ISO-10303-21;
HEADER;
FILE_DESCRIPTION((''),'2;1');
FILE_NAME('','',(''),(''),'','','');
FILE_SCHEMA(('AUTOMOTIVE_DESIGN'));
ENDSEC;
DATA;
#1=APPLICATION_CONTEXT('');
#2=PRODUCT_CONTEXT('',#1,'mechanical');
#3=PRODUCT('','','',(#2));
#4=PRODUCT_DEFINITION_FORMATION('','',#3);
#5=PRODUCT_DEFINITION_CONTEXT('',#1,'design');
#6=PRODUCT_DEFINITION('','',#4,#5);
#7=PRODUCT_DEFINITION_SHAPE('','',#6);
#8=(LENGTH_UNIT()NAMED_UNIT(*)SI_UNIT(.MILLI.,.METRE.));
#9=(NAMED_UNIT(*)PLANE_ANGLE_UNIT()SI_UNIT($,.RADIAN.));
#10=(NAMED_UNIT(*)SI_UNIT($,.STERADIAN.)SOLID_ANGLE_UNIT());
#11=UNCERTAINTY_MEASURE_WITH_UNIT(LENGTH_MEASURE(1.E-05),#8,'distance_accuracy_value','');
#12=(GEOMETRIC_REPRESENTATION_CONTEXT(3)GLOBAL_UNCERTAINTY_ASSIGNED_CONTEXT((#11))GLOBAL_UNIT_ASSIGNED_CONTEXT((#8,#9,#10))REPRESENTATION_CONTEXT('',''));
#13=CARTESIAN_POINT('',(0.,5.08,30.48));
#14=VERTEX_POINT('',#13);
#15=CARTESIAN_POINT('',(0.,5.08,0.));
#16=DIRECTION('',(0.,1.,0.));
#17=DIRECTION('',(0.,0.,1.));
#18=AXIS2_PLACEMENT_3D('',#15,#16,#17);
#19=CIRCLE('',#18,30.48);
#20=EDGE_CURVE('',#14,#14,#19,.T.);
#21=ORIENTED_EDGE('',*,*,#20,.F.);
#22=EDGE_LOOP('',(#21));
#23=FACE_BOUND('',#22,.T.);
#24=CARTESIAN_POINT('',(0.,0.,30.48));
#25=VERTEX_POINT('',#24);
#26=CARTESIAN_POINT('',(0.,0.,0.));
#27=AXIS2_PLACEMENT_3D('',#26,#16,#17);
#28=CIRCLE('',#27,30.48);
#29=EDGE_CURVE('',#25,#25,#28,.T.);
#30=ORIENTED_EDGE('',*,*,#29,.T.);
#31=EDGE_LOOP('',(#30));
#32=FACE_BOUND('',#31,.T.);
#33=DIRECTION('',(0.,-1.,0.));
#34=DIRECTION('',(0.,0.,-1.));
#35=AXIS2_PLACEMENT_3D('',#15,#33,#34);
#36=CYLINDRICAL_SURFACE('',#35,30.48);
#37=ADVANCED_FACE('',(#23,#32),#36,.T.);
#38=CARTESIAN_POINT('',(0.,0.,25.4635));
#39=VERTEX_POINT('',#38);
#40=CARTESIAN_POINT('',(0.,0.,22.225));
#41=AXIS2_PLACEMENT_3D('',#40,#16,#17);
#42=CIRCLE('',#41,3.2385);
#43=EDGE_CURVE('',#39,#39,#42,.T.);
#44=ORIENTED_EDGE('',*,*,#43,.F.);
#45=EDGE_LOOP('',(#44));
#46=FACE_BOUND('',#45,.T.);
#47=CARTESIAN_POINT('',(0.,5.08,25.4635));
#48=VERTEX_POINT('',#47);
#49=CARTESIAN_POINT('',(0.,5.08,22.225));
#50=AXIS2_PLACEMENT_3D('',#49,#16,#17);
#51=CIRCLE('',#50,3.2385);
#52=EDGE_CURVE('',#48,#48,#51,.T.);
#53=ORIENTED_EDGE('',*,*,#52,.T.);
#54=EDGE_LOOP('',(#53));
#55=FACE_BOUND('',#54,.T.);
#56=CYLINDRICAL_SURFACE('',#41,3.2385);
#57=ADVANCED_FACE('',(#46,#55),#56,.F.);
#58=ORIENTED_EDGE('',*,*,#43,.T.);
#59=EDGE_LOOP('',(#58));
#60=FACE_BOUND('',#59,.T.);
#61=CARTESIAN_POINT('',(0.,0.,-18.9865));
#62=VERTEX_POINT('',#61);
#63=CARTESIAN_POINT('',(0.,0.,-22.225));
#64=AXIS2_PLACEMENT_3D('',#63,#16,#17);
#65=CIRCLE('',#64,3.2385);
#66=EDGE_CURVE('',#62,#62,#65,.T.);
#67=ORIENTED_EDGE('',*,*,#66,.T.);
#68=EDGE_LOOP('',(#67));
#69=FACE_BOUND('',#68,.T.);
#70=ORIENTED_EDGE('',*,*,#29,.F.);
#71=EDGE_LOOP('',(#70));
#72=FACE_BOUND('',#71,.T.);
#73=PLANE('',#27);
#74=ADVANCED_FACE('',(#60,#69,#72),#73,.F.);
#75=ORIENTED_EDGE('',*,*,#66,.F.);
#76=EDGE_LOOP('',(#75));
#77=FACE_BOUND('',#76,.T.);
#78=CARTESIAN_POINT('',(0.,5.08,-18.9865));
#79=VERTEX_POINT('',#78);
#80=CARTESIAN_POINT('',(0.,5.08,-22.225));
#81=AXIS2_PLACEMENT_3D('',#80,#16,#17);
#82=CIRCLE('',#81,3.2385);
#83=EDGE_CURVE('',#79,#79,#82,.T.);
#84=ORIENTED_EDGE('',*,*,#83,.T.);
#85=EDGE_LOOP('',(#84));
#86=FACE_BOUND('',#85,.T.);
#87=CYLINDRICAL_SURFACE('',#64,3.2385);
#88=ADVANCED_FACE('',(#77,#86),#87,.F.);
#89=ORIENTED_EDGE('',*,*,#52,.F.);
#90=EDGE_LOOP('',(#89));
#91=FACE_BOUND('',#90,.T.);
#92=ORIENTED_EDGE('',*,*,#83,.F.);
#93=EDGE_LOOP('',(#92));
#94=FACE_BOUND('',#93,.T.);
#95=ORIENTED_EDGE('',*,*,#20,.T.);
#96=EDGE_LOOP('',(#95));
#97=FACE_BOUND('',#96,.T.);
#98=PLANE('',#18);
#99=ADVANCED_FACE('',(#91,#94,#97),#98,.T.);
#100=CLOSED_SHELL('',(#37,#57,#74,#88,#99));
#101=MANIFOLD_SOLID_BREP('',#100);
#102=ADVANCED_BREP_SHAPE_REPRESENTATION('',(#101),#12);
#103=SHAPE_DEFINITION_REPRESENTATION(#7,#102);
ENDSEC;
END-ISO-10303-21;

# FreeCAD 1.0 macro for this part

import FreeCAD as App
import Part
import Sketcher
from FreeCAD import Vector
Q = App.Units.Quantity

doc = App.newDocument("Part")
body = doc.addObject("PartDesign::Body", "Body")

# Sketch on XZ plane
sketch1 = body.newObject("Sketcher::SketchObject", "Sketch")
sketch1.AttachmentSupport = (doc.getObject("XZ_Plane"), [""])
sketch1.MapMode = "FlatFace"
sketch1.addGeometry(Part.Circle(Vector(0, 0, 0), Vector(0, 0, 1), 30), False)
sketch1.addConstraint([
    Sketcher.Constraint("Coincident", 0, 3, -1, 1),
    Sketcher.Constraint("Diameter", 0, Q("2.4 in")),
])
pad1 = body.newObject("PartDesign::Pad", "Pad")
pad1.Profile = sketch1
pad1.Length = Q("0.2 in")
pad1.Reversed = True

# Sketch on XZ plane
sketch2 = body.newObject("Sketcher::SketchObject", "Sketch001")
sketch2.AttachmentSupport = (doc.getObject("XZ_Plane"), [""])
sketch2.MapMode = "FlatFace"
sketch2.AttachmentOffset = App.Placement(Vector(0, 0, -0.2 * 25.4), App.Rotation())
sketch2.addGeometry([
    Part.Circle(Vector(0, -22.2, 0), Vector(0, 0, 1), 3.2),
    Part.Circle(Vector(0, 22.2, 0), Vector(0, 0, 1), 3.2),
], False)
sketch2.addConstraint([
    Sketcher.Constraint("Equal", 0, 1),
    Sketcher.Constraint("Symmetric", 0, 3, 1, 3, -1, 1),
    Sketcher.Constraint("PointOnObject", 0, 3, -2),
    Sketcher.Constraint("Diameter", 0, Q("0.255 in")),
    Sketcher.Constraint("DistanceY", 0, 3, 1, 3, Q("1.75 in")),
])
pocket1 = body.newObject("PartDesign::Pocket", "Pocket")
pocket1.Profile = sketch2
pocket1.Type = "ThroughAll"
pocket1.Reversed = True

doc.recompute()
